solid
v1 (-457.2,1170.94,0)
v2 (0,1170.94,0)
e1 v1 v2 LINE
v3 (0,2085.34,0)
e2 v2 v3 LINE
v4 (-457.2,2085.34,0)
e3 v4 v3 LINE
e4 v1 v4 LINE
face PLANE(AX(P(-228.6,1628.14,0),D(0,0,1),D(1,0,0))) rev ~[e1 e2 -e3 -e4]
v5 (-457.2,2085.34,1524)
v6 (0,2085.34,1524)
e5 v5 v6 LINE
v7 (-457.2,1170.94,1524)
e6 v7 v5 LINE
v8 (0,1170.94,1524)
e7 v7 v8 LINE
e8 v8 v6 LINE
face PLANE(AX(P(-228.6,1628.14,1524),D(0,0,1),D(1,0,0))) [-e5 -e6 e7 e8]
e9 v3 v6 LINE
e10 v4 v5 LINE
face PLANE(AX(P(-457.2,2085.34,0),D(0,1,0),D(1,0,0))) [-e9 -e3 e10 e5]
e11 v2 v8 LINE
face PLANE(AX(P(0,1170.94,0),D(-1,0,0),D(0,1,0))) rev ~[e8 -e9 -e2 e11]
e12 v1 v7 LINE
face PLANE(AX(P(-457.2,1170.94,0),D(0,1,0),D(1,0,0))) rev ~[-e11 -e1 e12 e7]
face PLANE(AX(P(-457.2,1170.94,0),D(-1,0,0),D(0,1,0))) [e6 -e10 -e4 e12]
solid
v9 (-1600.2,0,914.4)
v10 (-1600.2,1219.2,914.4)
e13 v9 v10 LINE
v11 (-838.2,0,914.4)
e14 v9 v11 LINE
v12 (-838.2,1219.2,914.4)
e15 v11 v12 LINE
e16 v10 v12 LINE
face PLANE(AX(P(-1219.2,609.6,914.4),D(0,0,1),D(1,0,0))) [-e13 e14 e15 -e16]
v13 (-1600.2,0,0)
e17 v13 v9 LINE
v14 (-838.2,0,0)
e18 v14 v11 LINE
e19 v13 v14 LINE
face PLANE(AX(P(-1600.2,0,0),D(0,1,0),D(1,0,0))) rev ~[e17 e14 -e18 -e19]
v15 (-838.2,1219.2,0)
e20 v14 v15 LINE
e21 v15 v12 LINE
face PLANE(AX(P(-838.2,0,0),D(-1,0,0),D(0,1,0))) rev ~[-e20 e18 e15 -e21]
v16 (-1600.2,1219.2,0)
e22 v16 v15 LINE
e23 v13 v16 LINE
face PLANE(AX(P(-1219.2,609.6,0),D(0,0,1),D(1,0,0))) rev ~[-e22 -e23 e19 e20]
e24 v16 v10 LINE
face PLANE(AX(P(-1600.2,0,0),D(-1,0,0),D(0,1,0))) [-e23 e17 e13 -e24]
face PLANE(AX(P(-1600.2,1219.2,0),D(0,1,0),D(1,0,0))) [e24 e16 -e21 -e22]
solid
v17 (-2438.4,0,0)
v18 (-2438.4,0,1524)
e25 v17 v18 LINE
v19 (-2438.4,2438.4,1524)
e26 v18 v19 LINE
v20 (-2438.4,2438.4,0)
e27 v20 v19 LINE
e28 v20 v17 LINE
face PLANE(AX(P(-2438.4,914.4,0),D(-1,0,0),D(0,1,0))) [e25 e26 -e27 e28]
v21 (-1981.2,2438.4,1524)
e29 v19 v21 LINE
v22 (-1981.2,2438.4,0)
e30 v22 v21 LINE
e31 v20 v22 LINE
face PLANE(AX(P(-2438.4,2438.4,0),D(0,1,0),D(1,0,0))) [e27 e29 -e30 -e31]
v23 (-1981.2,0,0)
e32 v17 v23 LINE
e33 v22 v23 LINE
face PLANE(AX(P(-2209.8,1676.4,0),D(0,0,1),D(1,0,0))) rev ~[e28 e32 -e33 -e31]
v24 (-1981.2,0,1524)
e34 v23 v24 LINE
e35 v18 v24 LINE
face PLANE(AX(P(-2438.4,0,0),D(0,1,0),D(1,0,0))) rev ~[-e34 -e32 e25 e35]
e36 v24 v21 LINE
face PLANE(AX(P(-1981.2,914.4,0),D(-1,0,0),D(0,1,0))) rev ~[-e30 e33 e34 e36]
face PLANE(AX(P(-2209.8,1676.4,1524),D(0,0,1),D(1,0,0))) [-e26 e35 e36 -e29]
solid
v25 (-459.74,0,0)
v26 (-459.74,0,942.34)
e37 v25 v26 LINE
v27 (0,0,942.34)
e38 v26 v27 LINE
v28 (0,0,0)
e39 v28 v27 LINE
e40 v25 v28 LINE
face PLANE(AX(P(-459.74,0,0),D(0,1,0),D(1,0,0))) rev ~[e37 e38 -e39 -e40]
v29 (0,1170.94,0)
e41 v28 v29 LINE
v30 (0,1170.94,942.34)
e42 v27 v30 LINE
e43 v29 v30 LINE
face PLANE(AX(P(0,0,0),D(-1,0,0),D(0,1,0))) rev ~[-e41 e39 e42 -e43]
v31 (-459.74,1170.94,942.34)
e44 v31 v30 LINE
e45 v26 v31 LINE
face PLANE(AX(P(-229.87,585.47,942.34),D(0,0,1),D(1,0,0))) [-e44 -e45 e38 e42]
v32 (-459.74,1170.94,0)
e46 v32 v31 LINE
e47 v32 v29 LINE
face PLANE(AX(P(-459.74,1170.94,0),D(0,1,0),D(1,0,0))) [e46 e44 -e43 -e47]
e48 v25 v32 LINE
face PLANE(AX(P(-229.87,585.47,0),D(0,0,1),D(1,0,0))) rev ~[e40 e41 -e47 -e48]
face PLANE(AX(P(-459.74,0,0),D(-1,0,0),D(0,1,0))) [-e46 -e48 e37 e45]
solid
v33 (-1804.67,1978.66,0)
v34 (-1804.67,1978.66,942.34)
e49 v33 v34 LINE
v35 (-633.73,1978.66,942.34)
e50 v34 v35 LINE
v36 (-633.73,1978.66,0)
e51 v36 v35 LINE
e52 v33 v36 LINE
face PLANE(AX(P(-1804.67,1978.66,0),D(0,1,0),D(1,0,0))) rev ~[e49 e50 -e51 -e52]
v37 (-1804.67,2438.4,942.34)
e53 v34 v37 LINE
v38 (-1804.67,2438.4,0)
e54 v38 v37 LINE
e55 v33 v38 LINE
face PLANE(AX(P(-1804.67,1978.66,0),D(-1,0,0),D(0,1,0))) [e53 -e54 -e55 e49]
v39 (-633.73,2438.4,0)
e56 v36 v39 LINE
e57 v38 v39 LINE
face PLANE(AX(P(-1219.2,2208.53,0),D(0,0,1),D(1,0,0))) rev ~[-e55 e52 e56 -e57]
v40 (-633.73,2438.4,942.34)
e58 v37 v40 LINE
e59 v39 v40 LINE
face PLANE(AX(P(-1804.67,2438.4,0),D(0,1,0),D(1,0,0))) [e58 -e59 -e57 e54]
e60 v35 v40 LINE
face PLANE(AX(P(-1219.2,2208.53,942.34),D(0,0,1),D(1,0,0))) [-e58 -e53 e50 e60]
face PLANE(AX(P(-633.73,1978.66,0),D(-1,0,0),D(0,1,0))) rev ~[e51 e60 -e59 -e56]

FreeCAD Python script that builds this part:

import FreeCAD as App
import Part
import Sketcher
from FreeCAD import Vector
Q = App.Units.Quantity

doc = App.newDocument("Part")
params = doc.addObject("Spreadsheet::Sheet", "Params")
for row, (alias, value) in enumerate([
    ("sketch1_width", "18 in"),
    ("sketch1_height", "36 in"),
    ("pad1_length", "60 in"),
    ("sketch2_width", "18 in"),
    ("sketch2_height", "60 in"),
    ("pad2_length", "60 in"),
    ("sketch3_width", "18.1 in"),
    ("sketch3_height", "46.1 in"),
    ("pad3_length", "37.1 in"),
    ("sketch4_width", "30 in"),
    ("sketch4_height", "48 in"),
    ("pad4_length", "36 in"),
    ("sketch5_width", "46.1 in"),
    ("sketch5_height", "18.1 in"),
    ("pad5_length", "37.1 in"),
    ("sketch6_width", "18 in"),
    ("sketch6_height", "36 in"),
    ("pad6_length", "60 in"),
], start=1):
    params.set(f"A{row}", alias)
    params.set(f"B{row}", "=" + value)
    params.setAlias(f"B{row}", alias)

body = doc.addObject("PartDesign::Body", "Body")

# Sketch on XY plane
sketch1 = body.newObject("Sketcher::SketchObject", "Sketch")
sketch1.AttachmentSupport = (doc.getObject("XY_Plane"), [""])
sketch1.MapMode = "FlatFace"
sketch1.addGeometry([
    Part.LineSegment(Vector(-2438, 914, 0), Vector(-2438, 0, 0)),
    Part.LineSegment(Vector(-2438, 0, 0), Vector(-1981, 0, 0)),
    Part.LineSegment(Vector(-1981, 0, 0), Vector(-1981, 914, 0)),
    Part.LineSegment(Vector(-1981, 914, 0), Vector(-2438, 914, 0)),
], False)
sketch1.addConstraint([
    Sketcher.Constraint("Coincident", 0, 2, 1, 1),
    Sketcher.Constraint("Coincident", 1, 2, 2, 1),
    Sketcher.Constraint("Coincident", 2, 2, 3, 1),
    Sketcher.Constraint("Coincident", 3, 2, 0, 1),
    Sketcher.Constraint("Vertical", 0),
    Sketcher.Constraint("Horizontal", 1),
    Sketcher.Constraint("Vertical", 2),
    Sketcher.Constraint("Horizontal", 3),
    Sketcher.Constraint("PointOnObject", 0, 2, -1),
    Sketcher.Constraint("DistanceX", 1, 1, 1, 2, Q("18 in")),
    Sketcher.Constraint("DistanceY", 0, 2, 0, 1, Q("36 in")),
    Sketcher.Constraint("DistanceX", 0, 2, -1, 1, Q("96 in")),
])
sketch1.setExpression("Constraints[9]", "Params.sketch1_width")
sketch1.setExpression("Constraints[10]", "Params.sketch1_height")
pad1 = body.newObject("PartDesign::Pad", "Pad")
pad1.Profile = sketch1
pad1.setExpression("Length", "Params.pad1_length")

# Sketch on XY plane
sketch2 = body.newObject("Sketcher::SketchObject", "Sketch001")
sketch2.AttachmentSupport = (doc.getObject("XY_Plane"), [""])
sketch2.MapMode = "FlatFace"
sketch2.addGeometry([
    Part.LineSegment(Vector(-2438, 2438, 0), Vector(-2438, 914, 0)),
    Part.LineSegment(Vector(-2438, 914, 0), Vector(-1981, 914, 0)),
    Part.LineSegment(Vector(-1981, 914, 0), Vector(-1981, 2438, 0)),
    Part.LineSegment(Vector(-1981, 2438, 0), Vector(-2438, 2438, 0)),
], False)
sketch2.addConstraint([
    Sketcher.Constraint("Coincident", 0, 2, 1, 1),
    Sketcher.Constraint("Coincident", 1, 2, 2, 1),
    Sketcher.Constraint("Coincident", 2, 2, 3, 1),
    Sketcher.Constraint("Coincident", 3, 2, 0, 1),
    Sketcher.Constraint("Vertical", 0),
    Sketcher.Constraint("Horizontal", 1),
    Sketcher.Constraint("Vertical", 2),
    Sketcher.Constraint("Horizontal", 3),
    Sketcher.Constraint("DistanceX", 1, 1, 1, 2, Q("18 in")),
    Sketcher.Constraint("DistanceY", 0, 2, 0, 1, Q("60 in")),
    Sketcher.Constraint("DistanceX", 0, 2, -1, 1, Q("96 in")),
    Sketcher.Constraint("DistanceY", -1, 1, 0, 2, Q("36 in")),
])
sketch2.setExpression("Constraints[8]", "Params.sketch2_width")
sketch2.setExpression("Constraints[9]", "Params.sketch2_height")
pad2 = body.newObject("PartDesign::Pad", "Pad001")
pad2.Profile = sketch2
pad2.setExpression("Length", "Params.pad2_length")
body2 = doc.addObject("PartDesign::Body", "Body001")

# Sketch on XY plane
sketch3 = body2.newObject("Sketcher::SketchObject", "Sketch002")
sketch3.AttachmentSupport = (doc.getObject("XY_Plane001"), [""])
sketch3.MapMode = "FlatFace"
sketch3.addGeometry([
    Part.LineSegment(Vector(-460, 1171, 0), Vector(-460, 0, 0)),
    Part.LineSegment(Vector(-460, 0, 0), Vector(0, 0, 0)),
    Part.LineSegment(Vector(0, 0, 0), Vector(0, 1171, 0)),
    Part.LineSegment(Vector(0, 1171, 0), Vector(-460, 1171, 0)),
], False)
sketch3.addConstraint([
    Sketcher.Constraint("Coincident", 0, 2, 1, 1),
    Sketcher.Constraint("Coincident", 1, 2, 2, 1),
    Sketcher.Constraint("Coincident", 2, 2, 3, 1),
    Sketcher.Constraint("Coincident", 3, 2, 0, 1),
    Sketcher.Constraint("Vertical", 0),
    Sketcher.Constraint("Horizontal", 1),
    Sketcher.Constraint("Vertical", 2),
    Sketcher.Constraint("Horizontal", 3),
    Sketcher.Constraint("Coincident", 1, 2, -1, 1),
    Sketcher.Constraint("DistanceX", 1, 1, 1, 2, Q("18.1 in")),
    Sketcher.Constraint("DistanceY", 0, 2, 0, 1, Q("46.1 in")),
])
sketch3.setExpression("Constraints[9]", "Params.sketch3_width")
sketch3.setExpression("Constraints[10]", "Params.sketch3_height")
pad3 = body2.newObject("PartDesign::Pad", "Pad002")
pad3.Profile = sketch3
pad3.setExpression("Length", "Params.pad3_length")
body3 = doc.addObject("PartDesign::Body", "Body002")

# Sketch on XY plane
sketch4 = body3.newObject("Sketcher::SketchObject", "Sketch003")
sketch4.AttachmentSupport = (doc.getObject("XY_Plane002"), [""])
sketch4.MapMode = "FlatFace"
sketch4.addGeometry([
    Part.LineSegment(Vector(-1600, 1219, 0), Vector(-1600, 0, 0)),
    Part.LineSegment(Vector(-1600, 0, 0), Vector(-838, 0, 0)),
    Part.LineSegment(Vector(-838, 0, 0), Vector(-838, 1219, 0)),
    Part.LineSegment(Vector(-838, 1219, 0), Vector(-1600, 1219, 0)),
], False)
sketch4.addConstraint([
    Sketcher.Constraint("Coincident", 0, 2, 1, 1),
    Sketcher.Constraint("Coincident", 1, 2, 2, 1),
    Sketcher.Constraint("Coincident", 2, 2, 3, 1),
    Sketcher.Constraint("Coincident", 3, 2, 0, 1),
    Sketcher.Constraint("Vertical", 0),
    Sketcher.Constraint("Horizontal", 1),
    Sketcher.Constraint("Vertical", 2),
    Sketcher.Constraint("Horizontal", 3),
    Sketcher.Constraint("PointOnObject", 0, 2, -1),
    Sketcher.Constraint("DistanceX", 1, 1, 1, 2, Q("30 in")),
    Sketcher.Constraint("DistanceY", 0, 2, 0, 1, Q("48 in")),
    Sketcher.Constraint("DistanceX", 0, 2, -1, 1, Q("63 in")),
])
sketch4.setExpression("Constraints[9]", "Params.sketch4_width")
sketch4.setExpression("Constraints[10]", "Params.sketch4_height")
pad4 = body3.newObject("PartDesign::Pad", "Pad003")
pad4.Profile = sketch4
pad4.setExpression("Length", "Params.pad4_length")
body4 = doc.addObject("PartDesign::Body", "Body003")

# Sketch on XY plane
sketch5 = body4.newObject("Sketcher::SketchObject", "Sketch004")
sketch5.AttachmentSupport = (doc.getObject("XY_Plane003"), [""])
sketch5.MapMode = "FlatFace"
sketch5.addGeometry([
    Part.LineSegment(Vector(-1805, 2438, 0), Vector(-1805, 1979, 0)),
    Part.LineSegment(Vector(-1805, 1979, 0), Vector(-634, 1979, 0)),
    Part.LineSegment(Vector(-634, 1979, 0), Vector(-634, 2438, 0)),
    Part.LineSegment(Vector(-634, 2438, 0), Vector(-1805, 2438, 0)),
], False)
sketch5.addConstraint([
    Sketcher.Constraint("Coincident", 0, 2, 1, 1),
    Sketcher.Constraint("Coincident", 1, 2, 2, 1),
    Sketcher.Constraint("Coincident", 2, 2, 3, 1),
    Sketcher.Constraint("Coincident", 3, 2, 0, 1),
    Sketcher.Constraint("Vertical", 0),
    Sketcher.Constraint("Horizontal", 1),
    Sketcher.Constraint("Vertical", 2),
    Sketcher.Constraint("Horizontal", 3),
    Sketcher.Constraint("DistanceX", 1, 1, 1, 2, Q("46.1 in")),
    Sketcher.Constraint("DistanceY", 0, 2, 0, 1, Q("18.1 in")),
    Sketcher.Constraint("DistanceY", -1, 1, 2, 2, Q("96 in")),
    Sketcher.Constraint("DistanceX", 0, 2, -1, 1, Q("71.05 in")),
])
sketch5.setExpression("Constraints[8]", "Params.sketch5_width")
sketch5.setExpression("Constraints[9]", "Params.sketch5_height")
pad5 = body4.newObject("PartDesign::Pad", "Pad004")
pad5.Profile = sketch5
pad5.setExpression("Length", "Params.pad5_length")
body5 = doc.addObject("PartDesign::Body", "Body004")

# Sketch on XY plane
sketch6 = body5.newObject("Sketcher::SketchObject", "Sketch005")
sketch6.AttachmentSupport = (doc.getObject("XY_Plane004"), [""])
sketch6.MapMode = "FlatFace"
sketch6.addGeometry([
    Part.LineSegment(Vector(-457, 2085, 0), Vector(-457, 1171, 0)),
    Part.LineSegment(Vector(-457, 1171, 0), Vector(0, 1171, 0)),
    Part.LineSegment(Vector(0, 1171, 0), Vector(0, 2085, 0)),
    Part.LineSegment(Vector(0, 2085, 0), Vector(-457, 2085, 0)),
], False)
sketch6.addConstraint([
    Sketcher.Constraint("Coincident", 0, 2, 1, 1),
    Sketcher.Constraint("Coincident", 1, 2, 2, 1),
    Sketcher.Constraint("Coincident", 2, 2, 3, 1),
    Sketcher.Constraint("Coincident", 3, 2, 0, 1),
    Sketcher.Constraint("Vertical", 0),
    Sketcher.Constraint("Horizontal", 1),
    Sketcher.Constraint("Vertical", 2),
    Sketcher.Constraint("Horizontal", 3),
    Sketcher.Constraint("PointOnObject", 1, 2, -2),
    Sketcher.Constraint("DistanceX", 1, 1, 1, 2, Q("18 in")),
    Sketcher.Constraint("DistanceY", 0, 2, 0, 1, Q("36 in")),
    Sketcher.Constraint("DistanceY", -1, 1, 0, 2, Q("46.1 in")),
])
sketch6.setExpression("Constraints[9]", "Params.sketch6_width")
sketch6.setExpression("Constraints[10]", "Params.sketch6_height")
pad6 = body5.newObject("PartDesign::Pad", "Pad005")
pad6.Profile = sketch6
pad6.setExpression("Length", "Params.pad6_length")

doc.recompute()
